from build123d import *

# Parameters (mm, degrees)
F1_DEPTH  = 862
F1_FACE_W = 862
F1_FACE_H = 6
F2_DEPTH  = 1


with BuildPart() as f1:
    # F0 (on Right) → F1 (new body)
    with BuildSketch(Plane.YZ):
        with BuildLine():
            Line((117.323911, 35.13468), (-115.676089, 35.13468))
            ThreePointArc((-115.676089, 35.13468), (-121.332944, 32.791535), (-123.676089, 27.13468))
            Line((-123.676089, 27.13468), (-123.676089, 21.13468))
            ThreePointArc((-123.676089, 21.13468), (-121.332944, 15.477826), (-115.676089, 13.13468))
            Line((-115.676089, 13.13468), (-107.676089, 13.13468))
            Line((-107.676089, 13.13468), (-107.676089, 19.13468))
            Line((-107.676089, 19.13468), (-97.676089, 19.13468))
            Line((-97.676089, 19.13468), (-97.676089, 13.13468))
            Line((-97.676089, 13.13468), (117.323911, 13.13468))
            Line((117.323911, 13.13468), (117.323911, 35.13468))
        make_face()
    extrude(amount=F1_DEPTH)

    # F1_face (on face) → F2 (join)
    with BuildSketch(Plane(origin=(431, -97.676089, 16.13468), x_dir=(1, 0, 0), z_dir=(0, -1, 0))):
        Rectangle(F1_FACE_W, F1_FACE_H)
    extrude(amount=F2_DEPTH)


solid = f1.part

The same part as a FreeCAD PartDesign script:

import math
import FreeCAD as App
import Part
import Sketcher
from FreeCAD import Vector

doc = App.newDocument("Part")
body = doc.addObject("PartDesign::Body", "Body")

sketch1 = doc.addObject("Sketcher::SketchObject", "Sketch")
body.addObject(sketch1)
sketch1.AttachmentSupport = (doc.YZ_Plane, [""])
sketch1.MapMode = "FlatFace"
sketch1.addGeometry([
    Part.LineSegment(Vector(117, 35, 0), Vector(-116, 35, 0)),
    Part.ArcOfCircle(Part.Circle(Vector(-116, 27, 0), Vector(0, 0, 1), 8), math.radians(90), math.radians(180)),
    Part.LineSegment(Vector(-124, 27, 0), Vector(-124, 21, 0)),
    Part.ArcOfCircle(Part.Circle(Vector(-116, 21, 0), Vector(0, 0, 1), 8), math.radians(180), math.radians(270)),
    Part.LineSegment(Vector(-116, 13, 0), Vector(-108, 13, 0)),
    Part.LineSegment(Vector(-108, 13, 0), Vector(-108, 19, 0)),
    Part.LineSegment(Vector(-108, 19, 0), Vector(-98, 19, 0)),
    Part.LineSegment(Vector(-98, 19, 0), Vector(-98, 13, 0)),
    Part.LineSegment(Vector(-98, 13, 0), Vector(117, 13, 0)),
    Part.LineSegment(Vector(117, 13, 0), Vector(117, 35, 0)),
], False)
sketch1.addConstraint([
    Sketcher.Constraint("Tangent", 0, 2, 1, 1),
    Sketcher.Constraint("Tangent", 1, 2, 2, 1),
    Sketcher.Constraint("Tangent", 2, 2, 3, 1),
    Sketcher.Constraint("Tangent", 3, 2, 4, 1),
    Sketcher.Constraint("Coincident", 4, 2, 5, 1),
    Sketcher.Constraint("Coincident", 5, 2, 6, 1),
    Sketcher.Constraint("Coincident", 6, 2, 7, 1),
    Sketcher.Constraint("Coincident", 7, 2, 8, 1),
    Sketcher.Constraint("Coincident", 8, 2, 9, 1),
    Sketcher.Constraint("Coincident", 9, 2, 0, 1),
    Sketcher.Constraint("Horizontal", 0),
    Sketcher.Constraint("Vertical", 2),
    Sketcher.Constraint("Horizontal", 4),
    Sketcher.Constraint("Vertical", 5),
    Sketcher.Constraint("Horizontal", 6),
    Sketcher.Constraint("Vertical", 7),
    Sketcher.Constraint("Horizontal", 8),
    Sketcher.Constraint("Vertical", 9),
    Sketcher.Constraint("Equal", 1, 3),
    Sketcher.Constraint("Horizontal", 4, 2, 7, 2),
    Sketcher.Constraint("Equal", 2, 5),
    Sketcher.Constraint("Radius", 3, 7.999999),
    Sketcher.Constraint("DistanceX", 0, 2, 0, 1, 233.0),
    Sketcher.Constraint("DistanceX", 4, 1, 4, 2, 8.0),
    Sketcher.Constraint("DistanceX", 6, 1, 6, 2, 10.0),
    Sketcher.Constraint("DistanceY", 2, 2, 2, 1, 6.0),
    Sketcher.Constraint("DistanceX", 1, 3, -1, 1, 115.676092),
    Sketcher.Constraint("DistanceY", -1, 1, 3, 3, 21.134679),
])
pad1 = doc.addObject("PartDesign::Pad", "Pad")
body.addObject(pad1)
pad1.Profile = sketch1
pad1.Length = 862

sketch2 = doc.addObject("Sketcher::SketchObject", "Sketch001")
body.addObject(sketch2)
sketch2.AttachmentSupport = (doc.XZ_Plane, [""])
sketch2.MapMode = "FlatFace"
sketch2.AttachmentOffset = App.Placement(Vector(0, 0, 97.676089), App.Rotation())
sketch2.addGeometry([
    Part.LineSegment(Vector(0, 19, 0), Vector(0, 13, 0)),
    Part.LineSegment(Vector(0, 13, 0), Vector(862, 13, 0)),
    Part.LineSegment(Vector(862, 13, 0), Vector(862, 19, 0)),
    Part.LineSegment(Vector(862, 19, 0), Vector(0, 19, 0)),
], False)
sketch2.addConstraint([
    Sketcher.Constraint("Coincident", 0, 2, 1, 1),
    Sketcher.Constraint("Coincident", 1, 2, 2, 1),
    Sketcher.Constraint("Coincident", 2, 2, 3, 1),
    Sketcher.Constraint("Coincident", 3, 2, 0, 1),
    Sketcher.Constraint("Vertical", 0),
    Sketcher.Constraint("Horizontal", 1),
    Sketcher.Constraint("Vertical", 2),
    Sketcher.Constraint("Horizontal", 3),
    Sketcher.Constraint("PointOnObject", 0, 2, -2),
    Sketcher.Constraint("DistanceX", 1, 1, 1, 2, 862.0),
    Sketcher.Constraint("DistanceY", 0, 2, 0, 1, 6.0),
    Sketcher.Constraint("DistanceY", -1, 1, 0, 2, 13.13468),
])
pad2 = doc.addObject("PartDesign::Pad", "Pad001")
body.addObject(pad2)
pad2.Profile = sketch2
pad2.Length = 1

doc.recompute()
